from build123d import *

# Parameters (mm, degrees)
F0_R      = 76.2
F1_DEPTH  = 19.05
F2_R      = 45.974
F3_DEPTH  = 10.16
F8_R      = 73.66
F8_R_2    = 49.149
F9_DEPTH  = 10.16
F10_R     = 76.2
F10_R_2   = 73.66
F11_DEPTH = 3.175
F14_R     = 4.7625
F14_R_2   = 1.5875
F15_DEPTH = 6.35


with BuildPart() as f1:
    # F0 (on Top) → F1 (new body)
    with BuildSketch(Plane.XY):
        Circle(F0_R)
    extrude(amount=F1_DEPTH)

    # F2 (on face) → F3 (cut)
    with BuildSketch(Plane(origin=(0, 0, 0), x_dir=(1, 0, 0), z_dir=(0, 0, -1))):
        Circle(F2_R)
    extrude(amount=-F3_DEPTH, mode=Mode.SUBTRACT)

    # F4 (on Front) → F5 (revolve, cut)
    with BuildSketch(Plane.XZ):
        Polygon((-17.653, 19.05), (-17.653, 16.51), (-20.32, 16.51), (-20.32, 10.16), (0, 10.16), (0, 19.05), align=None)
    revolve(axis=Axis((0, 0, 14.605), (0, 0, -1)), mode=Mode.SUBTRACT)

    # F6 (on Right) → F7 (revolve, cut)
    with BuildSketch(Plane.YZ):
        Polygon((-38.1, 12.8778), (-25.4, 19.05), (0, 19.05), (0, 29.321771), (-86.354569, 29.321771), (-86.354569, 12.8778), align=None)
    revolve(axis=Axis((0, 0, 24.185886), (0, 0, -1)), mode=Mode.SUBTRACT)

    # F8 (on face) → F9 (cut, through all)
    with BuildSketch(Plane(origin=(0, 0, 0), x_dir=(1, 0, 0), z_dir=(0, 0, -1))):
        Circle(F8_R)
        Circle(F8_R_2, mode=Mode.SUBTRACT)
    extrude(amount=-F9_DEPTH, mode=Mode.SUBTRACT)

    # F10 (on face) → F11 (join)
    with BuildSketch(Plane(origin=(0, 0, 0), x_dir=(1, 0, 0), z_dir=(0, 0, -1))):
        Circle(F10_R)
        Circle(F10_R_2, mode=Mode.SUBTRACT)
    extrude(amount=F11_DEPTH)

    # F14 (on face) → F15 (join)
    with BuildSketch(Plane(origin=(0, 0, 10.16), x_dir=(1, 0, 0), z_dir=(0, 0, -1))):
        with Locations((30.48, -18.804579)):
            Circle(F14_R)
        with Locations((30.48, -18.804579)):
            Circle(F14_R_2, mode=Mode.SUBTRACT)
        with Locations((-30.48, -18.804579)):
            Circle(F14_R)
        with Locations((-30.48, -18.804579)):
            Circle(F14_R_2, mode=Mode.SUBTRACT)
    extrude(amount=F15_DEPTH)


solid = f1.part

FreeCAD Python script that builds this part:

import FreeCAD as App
import Part
import Sketcher
from FreeCAD import Vector
Q = App.Units.Quantity


def add_polygon(sketch, points):
    """Adds a closed chain of lines whose ends are joined by coincident constraints."""
    first, n = sketch.GeometryCount, len(points)
    for a, b in zip(points, points[1:] + points[:1]):
        sketch.addGeometry(Part.LineSegment(App.Vector(*a, 0), App.Vector(*b, 0)), False)
    for i in range(n):
        sketch.addConstraint(Sketcher.Constraint("Coincident", first + i, 2, first + (i + 1) % n, 1))

doc = App.newDocument("Part")
body = doc.addObject("PartDesign::Body", "Body")

sketch1 = body.newObject("Sketcher::SketchObject", "Sketch")
sketch1.AttachmentSupport = (doc.getObject("XY_Plane"), [""])
sketch1.MapMode = "FlatFace"
sketch1.addGeometry(Part.Circle(Vector(0, 0, 0), Vector(0, 0, 1), 76), False)
sketch1.addConstraint(Sketcher.Constraint("Coincident", 0, 3, -1, 1))
sketch1.addConstraint(Sketcher.Constraint("Diameter", 0, Q("6 in")))
pad1 = body.newObject("PartDesign::Pad", "Pad")
pad1.Profile = sketch1
pad1.Length = Q("0.75 in")

sketch2 = body.newObject("Sketcher::SketchObject", "Sketch001")
sketch2.AttachmentSupport = (doc.getObject("XY_Plane"), [""])
sketch2.MapMode = "FlatFace"
sketch2.addGeometry(Part.Circle(Vector(0, 0, 0), Vector(0, 0, 1), 46), False)
sketch2.addConstraint(Sketcher.Constraint("Coincident", 0, 3, -1, 1))
sketch2.addConstraint(Sketcher.Constraint("Diameter", 0, Q("3.62 in")))
pocket1 = body.newObject("PartDesign::Pocket", "Pocket")
pocket1.Profile = sketch2
pocket1.Length = Q("0.4 in")
pocket1.Reversed = True

sketch3 = body.newObject("Sketcher::SketchObject", "Sketch002")
sketch3.AttachmentSupport = (doc.getObject("XZ_Plane"), [""])
sketch3.MapMode = "FlatFace"
add_polygon(sketch3, [(-17.7, 19.1), (-17.7, 16.5), (-20.3, 16.5), (-20.3, 10.2), (0, 10.2), (0, 19.1)])
sketch3.addConstraint(Sketcher.Constraint("Vertical", 0))
sketch3.addConstraint(Sketcher.Constraint("Horizontal", 1))
sketch3.addConstraint(Sketcher.Constraint("Vertical", 2))
sketch3.addConstraint(Sketcher.Constraint("Horizontal", 3))
sketch3.addConstraint(Sketcher.Constraint("Vertical", 4))
sketch3.addConstraint(Sketcher.Constraint("Horizontal", 5))
sketch3.addConstraint(Sketcher.Constraint("PointOnObject", 3, 2, -2))
sketch3.addConstraint(Sketcher.Constraint("DistanceX", 3, 1, 3, 2, Q("0.8 in")))
sketch3.addConstraint(Sketcher.Constraint("DistanceY", 0, 2, 0, 1, Q("0.1 in")))
sketch3.addConstraint(Sketcher.Constraint("DistanceY", 2, 2, 2, 1, Q("0.25 in")))
sketch3.addConstraint(Sketcher.Constraint("DistanceY", -1, 1, 2, 2, Q("0.4 in")))
sketch3.addConstraint(Sketcher.Constraint("DistanceX", 1, 2, 1, 1, Q("0.105 in")))
groove = body.newObject("PartDesign::Groove", "Groove")
groove.Profile = sketch3
groove.ReferenceAxis = (sketch3, ["V_Axis"])
groove.Angle = 360

sketch4 = body.newObject("Sketcher::SketchObject", "Sketch003")
sketch4.AttachmentSupport = (doc.getObject("YZ_Plane"), [""])
sketch4.MapMode = "FlatFace"
add_polygon(sketch4, [(-38, 13), (-25, 19), (0, 19), (0, 29), (-86, 29), (-86, 13)])
sketch4.addConstraint(Sketcher.Constraint("Horizontal", 1))
sketch4.addConstraint(Sketcher.Constraint("Vertical", 2))
sketch4.addConstraint(Sketcher.Constraint("Horizontal", 3))
sketch4.addConstraint(Sketcher.Constraint("Vertical", 4))
sketch4.addConstraint(Sketcher.Constraint("Horizontal", 5))
sketch4.addConstraint(Sketcher.Constraint("PointOnObject", 1, 2, -2))
sketch4.addConstraint(Sketcher.Constraint("DistanceX", 1, 1, 1, 2, Q("1 in")))
sketch4.addConstraint(Sketcher.Constraint("DistanceX", 5, 2, -1, 1, Q("1.5 in")))
sketch4.addConstraint(Sketcher.Constraint("DistanceY", -1, 1, 0, 2, Q("0.75 in")))
sketch4.addConstraint(Sketcher.Constraint("DistanceY", -1, 1, 4, 2, Q("0.507 in")))
sketch4.addConstraint(Sketcher.Constraint("DistanceX", 3, 2, 3, 1, 86.354569))
sketch4.addConstraint(Sketcher.Constraint("DistanceY", 2, 1, 2, 2, 10.271771))
groove2 = body.newObject("PartDesign::Groove", "Groove001")
groove2.Profile = sketch4
groove2.ReferenceAxis = (sketch4, ["V_Axis"])
groove2.Angle = 360

sketch5 = body.newObject("Sketcher::SketchObject", "Sketch004")
sketch5.AttachmentSupport = (doc.getObject("XY_Plane"), [""])
sketch5.MapMode = "FlatFace"
sketch5.addGeometry(Part.Circle(Vector(0, 0, 0), Vector(0, 0, 1), 74), False)
sketch5.addGeometry(Part.Circle(Vector(0, 0, 0), Vector(0, 0, 1), 49), False)
sketch5.addConstraint(Sketcher.Constraint("Coincident", 0, 3, -1, 1))
sketch5.addConstraint(Sketcher.Constraint("Coincident", 1, 3, -1, 1))
sketch5.addConstraint(Sketcher.Constraint("Diameter", 0, Q("5.8 in")))
sketch5.addConstraint(Sketcher.Constraint("Diameter", 1, Q("3.87 in")))
pocket2 = body.newObject("PartDesign::Pocket", "Pocket001")
pocket2.Profile = sketch5
pocket2.Length = Q("0.4 in")
pocket2.Reversed = True

sketch6 = body.newObject("Sketcher::SketchObject", "Sketch005")
sketch6.AttachmentSupport = (doc.getObject("XY_Plane"), [""])
sketch6.MapMode = "FlatFace"
sketch6.addGeometry(Part.Circle(Vector(0, 0, 0), Vector(0, 0, 1), 76), False)
sketch6.addGeometry(Part.Circle(Vector(0, 0, 0), Vector(0, 0, 1), 74), False)
sketch6.addConstraint(Sketcher.Constraint("Coincident", 0, 3, -1, 1))
sketch6.addConstraint(Sketcher.Constraint("Coincident", 1, 3, -1, 1))
sketch6.addConstraint(Sketcher.Constraint("Diameter", 0, Q("6 in")))
sketch6.addConstraint(Sketcher.Constraint("Diameter", 1, Q("5.8 in")))
pad2 = body.newObject("PartDesign::Pad", "Pad001")
pad2.Profile = sketch6
pad2.Length = Q("0.125 in")
pad2.Reversed = True

sketch7 = body.newObject("Sketcher::SketchObject", "Sketch006")
sketch7.AttachmentSupport = (doc.getObject("XY_Plane"), [""])
sketch7.MapMode = "FlatFace"
sketch7.AttachmentOffset = App.Placement(Vector(0, 0, 0.4 * 25.4), App.Rotation())
sketch7.addGeometry(Part.Circle(Vector(30.5, 18.8, 0), Vector(0, 0, 1), 4.8), False)
sketch7.addGeometry(Part.Circle(Vector(30.5, 18.8, 0), Vector(0, 0, 1), 1.6), False)
sketch7.addGeometry(Part.Circle(Vector(-30.5, 18.8, 0), Vector(0, 0, 1), 4.8), False)
sketch7.addGeometry(Part.Circle(Vector(-30.5, 18.8, 0), Vector(0, 0, 1), 1.6), False)
sketch7.addConstraint(Sketcher.Constraint("Coincident", 1, 3, 0, 3))
sketch7.addConstraint(Sketcher.Constraint("Coincident", 3, 3, 2, 3))
sketch7.addConstraint(Sketcher.Constraint("Equal", 0, 2))
sketch7.addConstraint(Sketcher.Constraint("Equal", 1, 3))
sketch7.addConstraint(Sketcher.Constraint("Symmetric", 0, 3, 2, 3, -2))
sketch7.addConstraint(Sketcher.Constraint("Diameter", 0, Q("0.375 in")))
sketch7.addConstraint(Sketcher.Constraint("Diameter", 1, Q("0.125 in")))
sketch7.addConstraint(Sketcher.Constraint("DistanceX", -1, 1, 0, 3, Q("1.2 in")))
sketch7.addConstraint(Sketcher.Constraint("DistanceY", -1, 1, 0, 3, 18.804579))
pad3 = body.newObject("PartDesign::Pad", "Pad002")
pad3.Profile = sketch7
pad3.Length = Q("0.25 in")
pad3.Reversed = True

doc.recompute()
